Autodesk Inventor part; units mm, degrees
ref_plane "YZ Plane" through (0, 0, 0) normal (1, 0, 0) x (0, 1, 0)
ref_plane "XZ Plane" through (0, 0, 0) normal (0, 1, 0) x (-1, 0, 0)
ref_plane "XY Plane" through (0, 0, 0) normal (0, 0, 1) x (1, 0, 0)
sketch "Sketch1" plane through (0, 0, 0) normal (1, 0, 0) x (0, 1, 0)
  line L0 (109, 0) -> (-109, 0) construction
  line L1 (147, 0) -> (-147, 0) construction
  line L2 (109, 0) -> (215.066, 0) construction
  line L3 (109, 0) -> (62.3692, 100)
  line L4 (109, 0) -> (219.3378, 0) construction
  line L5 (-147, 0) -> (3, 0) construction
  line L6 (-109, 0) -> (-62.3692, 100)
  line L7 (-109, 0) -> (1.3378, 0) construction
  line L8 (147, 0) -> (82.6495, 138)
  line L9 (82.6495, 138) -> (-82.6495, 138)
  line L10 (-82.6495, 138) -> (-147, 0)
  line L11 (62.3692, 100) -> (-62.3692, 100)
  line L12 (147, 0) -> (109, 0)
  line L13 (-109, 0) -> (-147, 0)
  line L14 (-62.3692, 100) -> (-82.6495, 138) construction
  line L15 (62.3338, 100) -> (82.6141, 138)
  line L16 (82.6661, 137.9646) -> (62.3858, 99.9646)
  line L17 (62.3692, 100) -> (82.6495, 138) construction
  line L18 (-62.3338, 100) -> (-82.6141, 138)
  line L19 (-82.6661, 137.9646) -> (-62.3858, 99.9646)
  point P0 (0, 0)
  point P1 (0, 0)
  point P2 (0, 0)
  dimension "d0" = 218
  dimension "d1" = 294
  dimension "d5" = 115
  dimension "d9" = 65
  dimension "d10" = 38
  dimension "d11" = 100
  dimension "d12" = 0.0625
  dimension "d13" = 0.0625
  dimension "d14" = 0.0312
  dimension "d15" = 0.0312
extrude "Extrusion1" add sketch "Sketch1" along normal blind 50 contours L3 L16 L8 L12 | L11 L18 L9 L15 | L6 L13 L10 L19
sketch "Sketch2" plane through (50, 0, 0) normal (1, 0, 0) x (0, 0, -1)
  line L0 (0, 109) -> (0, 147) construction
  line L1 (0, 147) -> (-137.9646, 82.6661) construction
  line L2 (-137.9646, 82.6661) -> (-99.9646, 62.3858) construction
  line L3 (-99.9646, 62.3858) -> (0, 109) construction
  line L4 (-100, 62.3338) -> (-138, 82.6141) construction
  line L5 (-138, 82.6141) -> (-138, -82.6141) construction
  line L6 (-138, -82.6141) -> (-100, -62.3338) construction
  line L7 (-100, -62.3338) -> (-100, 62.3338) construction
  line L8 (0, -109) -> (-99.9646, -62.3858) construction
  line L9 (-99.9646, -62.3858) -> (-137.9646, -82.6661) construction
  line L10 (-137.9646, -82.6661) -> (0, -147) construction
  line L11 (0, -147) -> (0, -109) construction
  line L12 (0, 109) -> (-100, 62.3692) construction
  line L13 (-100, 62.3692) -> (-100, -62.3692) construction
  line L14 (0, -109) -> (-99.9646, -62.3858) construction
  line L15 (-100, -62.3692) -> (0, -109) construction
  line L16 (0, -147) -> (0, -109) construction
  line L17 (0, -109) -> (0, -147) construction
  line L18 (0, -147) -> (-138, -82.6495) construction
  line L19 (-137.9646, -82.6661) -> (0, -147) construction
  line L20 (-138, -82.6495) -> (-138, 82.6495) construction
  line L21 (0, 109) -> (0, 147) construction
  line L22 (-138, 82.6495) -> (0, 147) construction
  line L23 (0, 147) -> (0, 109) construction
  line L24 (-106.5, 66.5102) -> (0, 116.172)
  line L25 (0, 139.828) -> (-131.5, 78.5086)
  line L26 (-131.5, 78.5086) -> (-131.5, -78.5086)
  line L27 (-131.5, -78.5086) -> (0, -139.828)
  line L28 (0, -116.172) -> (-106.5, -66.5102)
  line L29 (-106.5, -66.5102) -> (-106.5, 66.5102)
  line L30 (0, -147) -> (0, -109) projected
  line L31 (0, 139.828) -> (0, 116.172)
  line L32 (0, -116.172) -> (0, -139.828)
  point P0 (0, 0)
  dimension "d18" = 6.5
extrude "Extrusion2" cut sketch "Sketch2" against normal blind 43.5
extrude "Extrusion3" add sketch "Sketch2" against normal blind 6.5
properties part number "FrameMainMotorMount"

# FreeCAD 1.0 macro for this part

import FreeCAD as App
import Part
import Sketcher

V = App.Vector
Q = App.Units.Quantity


def add_polygon(sketch, points):
    """Adds a closed chain of lines whose ends are joined by coincident constraints."""
    first, n = sketch.GeometryCount, len(points)
    for a, b in zip(points, points[1:] + points[:1]):
        sketch.addGeometry(Part.LineSegment(App.Vector(*a, 0), App.Vector(*b, 0)), False)
    for i in range(n):
        sketch.addConstraint(Sketcher.Constraint("Coincident", first + i, 2, first + (i + 1) % n, 1))

doc = App.newDocument("Part")
body = doc.addObject("PartDesign::Body", "Body")
body.AllowCompound = True

sketch1 = body.newObject("Sketcher::SketchObject", "Sketch")
sketch1.AttachmentSupport = (doc.getObject("YZ_Plane"), [""])
sketch1.MapMode = "FlatFace"
add_polygon(sketch1, [(62, 100), (109, 0), (147, 0), (83, 138)])
add_polygon(sketch1, [(-62, 100), (62, 100), (83, 138), (-83, 138)])
add_polygon(sketch1, [(-109, 0), (-62, 100), (-83, 138), (-147, 0)])
sketch1.addConstraint(Sketcher.Constraint("Horizontal", 1))
sketch1.addConstraint(Sketcher.Constraint("Horizontal", 4))
sketch1.addConstraint(Sketcher.Constraint("Horizontal", 6))
sketch1.addConstraint(Sketcher.Constraint("Horizontal", 11))
sketch1.addConstraint(Sketcher.Constraint("Symmetric", 1, 2, 10, 2, -1, 1))
sketch1.addConstraint(Sketcher.Constraint("Symmetric", 3, 2, 8, 2, -2))
sketch1.addConstraint(Sketcher.Constraint("Symmetric", 2, 2, 9, 2, -2))
sketch1.addConstraint(Sketcher.Constraint("Symmetric", 0, 2, 11, 2, -2))
sketch1.addConstraint(Sketcher.Constraint("Parallel", 0, 2))
sketch1.addConstraint(Sketcher.Constraint("Parallel", 3, 5))
sketch1.addConstraint(Sketcher.Constraint("Parallel", 7, 9))
sketch1.addConstraint(Sketcher.Constraint("Equal", 3, 5))
sketch1.addConstraint(Sketcher.Constraint("DistanceX", 1, 1, 1, 2, 38.0))
sketch1.addConstraint(Sketcher.Constraint("Angle", 0, Q("-65 deg")))
sketch1.addConstraint(Sketcher.Constraint("DistanceY", -1, 1, 4, 2, 100.0))
sketch1.addConstraint(Sketcher.Constraint("DistanceY", 3, 2, 2, 2, 38.0))
sketch1.addConstraint(Sketcher.Constraint("DistanceX", -1, 1, 0, 2, 109.0))
sketch1.addConstraint(Sketcher.Constraint("DistanceX", 6, 2, 3, 2, 145.0))
sketch1.addConstraint(Sketcher.Constraint("DistanceX", 9, 2, 4, 2, 145.0))
sketch1.addConstraint(Sketcher.Constraint("Distance", 2, 152.227))
pad1 = body.newObject("PartDesign::Pad", "Pad")
pad1.Profile = sketch1
pad1.Length = 50

sketch2 = body.newObject("Sketcher::SketchObject", "Sketch001")
sketch2.AttachmentSupport = (doc.getObject("YZ_Plane"), [""])
sketch2.MapMode = "FlatFace"
sketch2.AttachmentOffset = App.Placement(V(0, 0, 50), App.Rotation())
add_polygon(sketch2, [(-67, 106), (67, 106), (116, 0), (140, 0), (79, 132), (-79, 132), (-140, 0), (-116, 0)])
sketch2.addConstraint(Sketcher.Constraint("Horizontal", 0))
sketch2.addConstraint(Sketcher.Constraint("Horizontal", 2))
sketch2.addConstraint(Sketcher.Constraint("Horizontal", 4))
sketch2.addConstraint(Sketcher.Constraint("Horizontal", 6))
sketch2.addConstraint(Sketcher.Constraint("Symmetric", 2, 2, 5, 2, -1, 1))
sketch2.addConstraint(Sketcher.Constraint("Symmetric", 1, 2, 6, 2, -2))
sketch2.addConstraint(Sketcher.Constraint("Parallel", 1, 3))
sketch2.addConstraint(Sketcher.Constraint("Parallel", 5, 7))
sketch2.addConstraint(Sketcher.Constraint("Equal", 3, 5))
sketch2.addConstraint(Sketcher.Constraint("Angle", 1, Q("-65 deg")))
sketch2.addConstraint(Sketcher.Constraint("DistanceY", 0, 2, 3, 2, 25.0))
sketch2.addConstraint(Sketcher.Constraint("DistanceX", 5, 2, 1, 2, 256.0))
sketch2.addConstraint(Sketcher.Constraint("DistanceY", -1, 1, 0, 2, 106.5))
sketch2.addConstraint(Sketcher.Constraint("DistanceX", 2, 1, 2, 2, 23.656))
pocket1 = body.newObject("PartDesign::Pocket", "Pocket")
pocket1.Profile = sketch2
pocket1.Length = 43.5

sketch3 = body.newObject("Sketcher::SketchObject", "Sketch002")
sketch3.AttachmentSupport = (doc.getObject("YZ_Plane"), [""])
sketch3.MapMode = "FlatFace"
sketch3.AttachmentOffset = App.Placement(V(0, 0, 50), App.Rotation())
add_polygon(sketch3, [(-67, 106), (67, 106), (116, 0), (140, 0), (79, 132), (-79, 132), (-140, 0), (-116, 0)])
sketch3.addConstraint(Sketcher.Constraint("Horizontal", 0))
sketch3.addConstraint(Sketcher.Constraint("Horizontal", 2))
sketch3.addConstraint(Sketcher.Constraint("Horizontal", 4))
sketch3.addConstraint(Sketcher.Constraint("Horizontal", 6))
sketch3.addConstraint(Sketcher.Constraint("Symmetric", 2, 2, 5, 2, -1, 1))
sketch3.addConstraint(Sketcher.Constraint("Symmetric", 1, 2, 6, 2, -2))
sketch3.addConstraint(Sketcher.Constraint("Parallel", 1, 3))
sketch3.addConstraint(Sketcher.Constraint("Parallel", 5, 7))
sketch3.addConstraint(Sketcher.Constraint("Equal", 3, 5))
sketch3.addConstraint(Sketcher.Constraint("Angle", 1, Q("-65 deg")))
sketch3.addConstraint(Sketcher.Constraint("DistanceY", 0, 2, 3, 2, 25.0))
sketch3.addConstraint(Sketcher.Constraint("DistanceX", 5, 2, 1, 2, 256.0))
sketch3.addConstraint(Sketcher.Constraint("DistanceY", -1, 1, 0, 2, 106.5))
sketch3.addConstraint(Sketcher.Constraint("DistanceX", 2, 1, 2, 2, 23.656))
pad2 = body.newObject("PartDesign::Pad", "Pad001")
pad2.Profile = sketch3
pad2.Length = 6.5
pad2.Reversed = True

doc.recompute()
